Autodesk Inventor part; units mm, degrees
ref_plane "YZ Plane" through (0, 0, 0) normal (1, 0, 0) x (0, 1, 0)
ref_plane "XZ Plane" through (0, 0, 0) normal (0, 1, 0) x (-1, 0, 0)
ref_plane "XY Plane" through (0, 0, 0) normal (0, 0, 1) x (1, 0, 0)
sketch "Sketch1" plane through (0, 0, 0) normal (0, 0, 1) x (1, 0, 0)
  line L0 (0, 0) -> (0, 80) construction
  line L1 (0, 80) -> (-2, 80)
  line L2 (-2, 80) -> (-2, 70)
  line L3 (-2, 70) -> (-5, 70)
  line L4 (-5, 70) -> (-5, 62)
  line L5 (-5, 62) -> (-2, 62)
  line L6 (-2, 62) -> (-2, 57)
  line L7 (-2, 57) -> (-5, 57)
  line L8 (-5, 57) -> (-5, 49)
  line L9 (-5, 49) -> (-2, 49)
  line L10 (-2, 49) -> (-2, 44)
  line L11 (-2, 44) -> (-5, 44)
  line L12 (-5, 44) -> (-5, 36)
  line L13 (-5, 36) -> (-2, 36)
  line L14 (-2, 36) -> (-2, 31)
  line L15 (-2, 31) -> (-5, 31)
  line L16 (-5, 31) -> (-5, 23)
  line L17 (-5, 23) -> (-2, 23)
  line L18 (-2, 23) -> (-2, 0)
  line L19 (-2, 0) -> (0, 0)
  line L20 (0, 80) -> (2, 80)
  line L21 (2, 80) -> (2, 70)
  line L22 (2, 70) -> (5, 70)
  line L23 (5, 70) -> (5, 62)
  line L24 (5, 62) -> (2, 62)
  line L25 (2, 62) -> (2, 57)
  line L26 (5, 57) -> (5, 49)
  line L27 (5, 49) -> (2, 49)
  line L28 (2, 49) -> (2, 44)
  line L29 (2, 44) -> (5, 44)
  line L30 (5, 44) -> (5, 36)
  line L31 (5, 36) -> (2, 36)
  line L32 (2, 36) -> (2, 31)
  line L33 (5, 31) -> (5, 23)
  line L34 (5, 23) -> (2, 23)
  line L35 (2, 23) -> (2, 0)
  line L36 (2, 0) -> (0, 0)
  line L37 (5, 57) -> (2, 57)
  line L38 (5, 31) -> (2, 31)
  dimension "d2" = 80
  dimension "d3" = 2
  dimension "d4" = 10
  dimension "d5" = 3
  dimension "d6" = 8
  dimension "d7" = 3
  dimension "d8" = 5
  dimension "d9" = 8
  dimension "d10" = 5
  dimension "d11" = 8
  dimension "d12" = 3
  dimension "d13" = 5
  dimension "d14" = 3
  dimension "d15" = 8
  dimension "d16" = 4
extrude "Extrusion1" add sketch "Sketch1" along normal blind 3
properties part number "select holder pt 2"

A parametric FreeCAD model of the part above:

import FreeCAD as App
import Part
import Sketcher

V = App.Vector

doc = App.newDocument("Part")
body = doc.addObject("PartDesign::Body", "Body")

# Sketch on XY plane
sketch1 = doc.addObject("Sketcher::SketchObject", "Sketch")
body.addObject(sketch1)
sketch1.AttachmentSupport = (doc.XY_Plane, [""])
sketch1.MapMode = "FlatFace"
sketch1.addGeometry([
    Part.LineSegment(V(2, 80, 0), V(-2, 80, 0)),  # 0
    Part.LineSegment(V(-2, 80, 0), V(-2, 70, 0)),  # 1
    Part.LineSegment(V(-2, 70, 0), V(-5, 70, 0)),  # 2
    Part.LineSegment(V(-5, 70, 0), V(-5, 62, 0)),  # 3
    Part.LineSegment(V(-5, 62, 0), V(-2, 62, 0)),  # 4
    Part.LineSegment(V(-2, 62, 0), V(-2, 57, 0)),  # 5
    Part.LineSegment(V(-2, 57, 0), V(-5, 57, 0)),  # 6
    Part.LineSegment(V(-5, 57, 0), V(-5, 49, 0)),  # 7
    Part.LineSegment(V(-5, 49, 0), V(-2, 49, 0)),  # 8
    Part.LineSegment(V(-2, 49, 0), V(-2, 44, 0)),  # 9
    Part.LineSegment(V(-2, 44, 0), V(-5, 44, 0)),  # 10
    Part.LineSegment(V(-5, 44, 0), V(-5, 36, 0)),  # 11
    Part.LineSegment(V(-5, 36, 0), V(-2, 36, 0)),  # 12
    Part.LineSegment(V(-2, 36, 0), V(-2, 31, 0)),  # 13
    Part.LineSegment(V(-2, 31, 0), V(-5, 31, 0)),  # 14
    Part.LineSegment(V(-5, 31, 0), V(-5, 23, 0)),  # 15
    Part.LineSegment(V(-5, 23, 0), V(-2, 23, 0)),  # 16
    Part.LineSegment(V(-2, 23, 0), V(-2, 0, 0)),  # 17
    Part.LineSegment(V(-2, 0, 0), V(2, 0, 0)),  # 18
    Part.LineSegment(V(2, 0, 0), V(2, 23, 0)),  # 19
    Part.LineSegment(V(2, 23, 0), V(5, 23, 0)),  # 20
    Part.LineSegment(V(5, 23, 0), V(5, 31, 0)),  # 21
    Part.LineSegment(V(5, 31, 0), V(2, 31, 0)),  # 22
    Part.LineSegment(V(2, 31, 0), V(2, 36, 0)),  # 23
    Part.LineSegment(V(2, 36, 0), V(5, 36, 0)),  # 24
    Part.LineSegment(V(5, 36, 0), V(5, 44, 0)),  # 25
    Part.LineSegment(V(5, 44, 0), V(2, 44, 0)),  # 26
    Part.LineSegment(V(2, 44, 0), V(2, 49, 0)),  # 27
    Part.LineSegment(V(2, 49, 0), V(5, 49, 0)),  # 28
    Part.LineSegment(V(5, 49, 0), V(5, 57, 0)),  # 29
    Part.LineSegment(V(5, 57, 0), V(2, 57, 0)),  # 30
    Part.LineSegment(V(2, 57, 0), V(2, 62, 0)),  # 31
    Part.LineSegment(V(2, 62, 0), V(5, 62, 0)),  # 32
    Part.LineSegment(V(5, 62, 0), V(5, 70, 0)),  # 33
    Part.LineSegment(V(5, 70, 0), V(2, 70, 0)),  # 34
    Part.LineSegment(V(2, 70, 0), V(2, 80, 0)),  # 35
], False)
sketch1.addConstraint([
    Sketcher.Constraint("Coincident", 0, 2, 1, 1),
    Sketcher.Constraint("Coincident", 1, 2, 2, 1),
    Sketcher.Constraint("Coincident", 2, 2, 3, 1),
    Sketcher.Constraint("Coincident", 3, 2, 4, 1),
    Sketcher.Constraint("Coincident", 4, 2, 5, 1),
    Sketcher.Constraint("Coincident", 5, 2, 6, 1),
    Sketcher.Constraint("Coincident", 6, 2, 7, 1),
    Sketcher.Constraint("Coincident", 7, 2, 8, 1),
    Sketcher.Constraint("Coincident", 8, 2, 9, 1),
    Sketcher.Constraint("Coincident", 9, 2, 10, 1),
    Sketcher.Constraint("Coincident", 10, 2, 11, 1),
    Sketcher.Constraint("Coincident", 11, 2, 12, 1),
    Sketcher.Constraint("Coincident", 12, 2, 13, 1),
    Sketcher.Constraint("Coincident", 13, 2, 14, 1),
    Sketcher.Constraint("Coincident", 14, 2, 15, 1),
    Sketcher.Constraint("Coincident", 15, 2, 16, 1),
    Sketcher.Constraint("Coincident", 16, 2, 17, 1),
    Sketcher.Constraint("Coincident", 17, 2, 18, 1),
    Sketcher.Constraint("Coincident", 18, 2, 19, 1),
    Sketcher.Constraint("Coincident", 19, 2, 20, 1),
    Sketcher.Constraint("Coincident", 20, 2, 21, 1),
    Sketcher.Constraint("Coincident", 21, 2, 22, 1),
    Sketcher.Constraint("Coincident", 22, 2, 23, 1),
    Sketcher.Constraint("Coincident", 23, 2, 24, 1),
    Sketcher.Constraint("Coincident", 24, 2, 25, 1),
    Sketcher.Constraint("Coincident", 25, 2, 26, 1),
    Sketcher.Constraint("Coincident", 26, 2, 27, 1),
    Sketcher.Constraint("Coincident", 27, 2, 28, 1),
    Sketcher.Constraint("Coincident", 28, 2, 29, 1),
    Sketcher.Constraint("Coincident", 29, 2, 30, 1),
    Sketcher.Constraint("Coincident", 30, 2, 31, 1),
    Sketcher.Constraint("Coincident", 31, 2, 32, 1),
    Sketcher.Constraint("Coincident", 32, 2, 33, 1),
    Sketcher.Constraint("Coincident", 33, 2, 34, 1),
    Sketcher.Constraint("Coincident", 34, 2, 35, 1),
    Sketcher.Constraint("Coincident", 35, 2, 0, 1),
    Sketcher.Constraint("Horizontal", 0),
    Sketcher.Constraint("Vertical", 1),
    Sketcher.Constraint("Horizontal", 2),
    Sketcher.Constraint("Vertical", 3),
    Sketcher.Constraint("Horizontal", 4),
    Sketcher.Constraint("Vertical", 5),
    Sketcher.Constraint("Horizontal", 6),
    Sketcher.Constraint("Vertical", 7),
    Sketcher.Constraint("Horizontal", 8),
    Sketcher.Constraint("Vertical", 9),
    Sketcher.Constraint("Horizontal", 10),
    Sketcher.Constraint("Vertical", 11),
    Sketcher.Constraint("Horizontal", 12),
    Sketcher.Constraint("Vertical", 13),
    Sketcher.Constraint("Horizontal", 14),
    Sketcher.Constraint("Vertical", 15),
    Sketcher.Constraint("Horizontal", 16),
    Sketcher.Constraint("Vertical", 17),
    Sketcher.Constraint("Horizontal", 18),
    Sketcher.Constraint("Vertical", 19),
    Sketcher.Constraint("Horizontal", 20),
    Sketcher.Constraint("Vertical", 21),
    Sketcher.Constraint("Horizontal", 22),
    Sketcher.Constraint("Vertical", 23),
    Sketcher.Constraint("Horizontal", 24),
    Sketcher.Constraint("Vertical", 25),
    Sketcher.Constraint("Horizontal", 26),
    Sketcher.Constraint("Vertical", 27),
    Sketcher.Constraint("Horizontal", 28),
    Sketcher.Constraint("Vertical", 29),
    Sketcher.Constraint("Horizontal", 30),
    Sketcher.Constraint("Vertical", 31),
    Sketcher.Constraint("Horizontal", 32),
    Sketcher.Constraint("Vertical", 33),
    Sketcher.Constraint("Horizontal", 34),
    Sketcher.Constraint("Vertical", 35),
    Sketcher.Constraint("Symmetric", 17, 2, 18, 2, -1, 1),
    Sketcher.Constraint("Symmetric", 15, 2, 20, 2, -2),
    Sketcher.Constraint("Symmetric", 13, 2, 22, 2, -2),
    Sketcher.Constraint("Symmetric", 11, 2, 24, 2, -2),
    Sketcher.Constraint("Symmetric", 9, 2, 26, 2, -2),
    Sketcher.Constraint("Symmetric", 7, 2, 28, 2, -2),
    Sketcher.Constraint("Symmetric", 5, 2, 30, 2, -2),
    Sketcher.Constraint("Symmetric", 3, 2, 32, 2, -2),
    Sketcher.Constraint("Symmetric", 1, 2, 34, 2, -2),
    Sketcher.Constraint("Vertical", 1, 2, 4, 2),
    Sketcher.Constraint("Vertical", 3, 2, 6, 2),
    Sketcher.Constraint("Vertical", 5, 2, 8, 2),
    Sketcher.Constraint("Vertical", 7, 2, 10, 2),
    Sketcher.Constraint("Vertical", 9, 2, 12, 2),
    Sketcher.Constraint("Vertical", 11, 2, 14, 2),
    Sketcher.Constraint("Vertical", 13, 2, 16, 2),
    Sketcher.Constraint("Equal", 3, 7),
    Sketcher.Constraint("Equal", 5, 9),
    Sketcher.Constraint("Equal", 7, 11),
    Sketcher.Constraint("Equal", 9, 13),
    Sketcher.Constraint("Equal", 11, 15),
    Sketcher.Constraint("DistanceX", 0, 2, 0, 1, 4.0),
    Sketcher.Constraint("DistanceX", 2, 2, 2, 1, 3.0),
    Sketcher.Constraint("DistanceY", 1, 2, 1, 1, 10.0),
    Sketcher.Constraint("DistanceY", 3, 2, 3, 1, 8.0),
    Sketcher.Constraint("DistanceY", 5, 2, 5, 1, 5.0),
    Sketcher.Constraint("DistanceY", -1, 1, 0, 2, 80.0),
])
pad1 = doc.addObject("PartDesign::Pad", "Pad")
body.addObject(pad1)
pad1.Profile = sketch1
pad1.Length = 3

doc.recompute()
